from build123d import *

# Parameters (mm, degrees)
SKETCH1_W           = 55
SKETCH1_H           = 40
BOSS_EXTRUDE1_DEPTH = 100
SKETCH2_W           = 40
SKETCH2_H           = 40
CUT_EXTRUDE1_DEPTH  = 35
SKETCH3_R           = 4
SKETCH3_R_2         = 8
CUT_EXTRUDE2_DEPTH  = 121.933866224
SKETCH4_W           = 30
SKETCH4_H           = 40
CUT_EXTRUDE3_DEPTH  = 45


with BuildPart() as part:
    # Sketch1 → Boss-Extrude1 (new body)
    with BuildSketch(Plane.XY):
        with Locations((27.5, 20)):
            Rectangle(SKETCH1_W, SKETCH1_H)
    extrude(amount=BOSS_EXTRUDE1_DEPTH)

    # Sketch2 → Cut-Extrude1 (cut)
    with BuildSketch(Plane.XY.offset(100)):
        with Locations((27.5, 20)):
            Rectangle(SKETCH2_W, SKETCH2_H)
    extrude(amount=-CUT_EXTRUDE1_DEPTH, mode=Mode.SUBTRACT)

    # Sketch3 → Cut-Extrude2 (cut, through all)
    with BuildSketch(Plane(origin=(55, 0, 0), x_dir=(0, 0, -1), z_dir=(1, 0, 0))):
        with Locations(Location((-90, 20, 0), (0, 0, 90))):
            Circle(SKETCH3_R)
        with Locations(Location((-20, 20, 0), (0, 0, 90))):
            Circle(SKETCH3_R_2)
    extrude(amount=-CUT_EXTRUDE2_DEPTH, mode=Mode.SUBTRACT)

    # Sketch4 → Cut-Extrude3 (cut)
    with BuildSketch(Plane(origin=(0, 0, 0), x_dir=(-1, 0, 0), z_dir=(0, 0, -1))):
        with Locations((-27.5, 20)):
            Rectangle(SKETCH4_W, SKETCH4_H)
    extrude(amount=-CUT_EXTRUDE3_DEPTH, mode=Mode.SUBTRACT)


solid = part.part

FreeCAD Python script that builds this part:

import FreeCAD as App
import Part
import Sketcher


def add_polygon(sketch, points):
    """Adds a closed chain of lines whose ends are joined by coincident constraints."""
    first, n = sketch.GeometryCount, len(points)
    for a, b in zip(points, points[1:] + points[:1]):
        sketch.addGeometry(Part.LineSegment(App.Vector(*a, 0), App.Vector(*b, 0)), False)
    for i in range(n):
        sketch.addConstraint(Sketcher.Constraint("Coincident", first + i, 2, first + (i + 1) % n, 1))

doc = App.newDocument("Part")
params = doc.addObject("Spreadsheet::Sheet", "Params")
for row, (alias, value) in enumerate([
    ("sketch1_width", "55 mm"),
    ("sketch1_height", "40 mm"),
    ("pad1_length", "100 mm"),
    ("sketch2_width", "40 mm"),
    ("pocket1_length", "35 mm"),
    ("sketch3_diameter", "8 mm"),
    ("sketch3_diameter2", "16 mm"),
    ("sketch4_width", "30 mm"),
    ("sketch4_height", "40 mm"),
    ("pocket3_length", "45 mm"),
], start=1):
    params.set(f"A{row}", alias)
    params.set(f"B{row}", "=" + value)
    params.setAlias(f"B{row}", alias)

body = doc.addObject("PartDesign::Body", "Body")

# Sketch on XY plane
sketch1 = body.newObject("Sketcher::SketchObject", "Sketch")
sketch1.AttachmentSupport = (doc.getObject("XY_Plane"), [""])
sketch1.MapMode = "FlatFace"
add_polygon(sketch1, [(0, 40), (0, 0), (55, 0), (55, 40)])  # lines 0-3
sketch1.addConstraint(Sketcher.Constraint("Vertical", 0))
sketch1.addConstraint(Sketcher.Constraint("Horizontal", 1))
sketch1.addConstraint(Sketcher.Constraint("Vertical", 2))
sketch1.addConstraint(Sketcher.Constraint("Horizontal", 3))
sketch1.addConstraint(Sketcher.Constraint("Coincident", 0, 2, -1, 1))
sketch1.addConstraint(Sketcher.Constraint("DistanceX", 1, 1, 1, 2, 55.0))
sketch1.addConstraint(Sketcher.Constraint("DistanceY", 0, 2, 0, 1, 40.0))
sketch1.setExpression("Constraints[9]", "Params.sketch1_width")
sketch1.setExpression("Constraints[10]", "Params.sketch1_height")
pad1 = body.newObject("PartDesign::Pad", "Pad")
pad1.Profile = sketch1
pad1.setExpression("Length", "Params.pad1_length")

# Sketch on XY plane
sketch2 = body.newObject("Sketcher::SketchObject", "Sketch001")
sketch2.AttachmentSupport = (doc.getObject("XY_Plane"), [""])
sketch2.MapMode = "FlatFace"
sketch2.AttachmentOffset = App.Placement(App.Vector(0, 0, 100), App.Rotation())
add_polygon(sketch2, [(8, 40), (8, 0), (48, 0), (48, 40)])  # lines 0-3
sketch2.addConstraint(Sketcher.Constraint("Vertical", 0))
sketch2.addConstraint(Sketcher.Constraint("Horizontal", 1))
sketch2.addConstraint(Sketcher.Constraint("Vertical", 2))
sketch2.addConstraint(Sketcher.Constraint("Horizontal", 3))
sketch2.addConstraint(Sketcher.Constraint("PointOnObject", 0, 2, -1))
sketch2.addConstraint(Sketcher.Constraint("Equal", 3, 0))
sketch2.addConstraint(Sketcher.Constraint("DistanceX", 1, 1, 1, 2, 40.0))
sketch2.addConstraint(Sketcher.Constraint("DistanceX", -1, 1, 0, 2, 7.5))
sketch2.setExpression("Constraints[10]", "Params.sketch2_width")
pocket1 = body.newObject("PartDesign::Pocket", "Pocket")
pocket1.Profile = sketch2
pocket1.setExpression("Length", "Params.pocket1_length")

# Sketch on YZ plane
sketch3 = body.newObject("Sketcher::SketchObject", "Sketch002")
sketch3.AttachmentSupport = (doc.getObject("YZ_Plane"), [""])
sketch3.MapMode = "FlatFace"
sketch3.AttachmentOffset = App.Placement(App.Vector(0, 0, 55), App.Rotation())
sketch3.addGeometry(Part.Circle(App.Vector(20, 90, 0), App.Vector(0, 0, 1), 4), False)
sketch3.addGeometry(Part.Circle(App.Vector(20, 20, 0), App.Vector(0, 0, 1), 8), False)
sketch3.addConstraint(Sketcher.Constraint("Vertical", 0, 3, 1, 3))
sketch3.addConstraint(Sketcher.Constraint("Diameter", 0, 8.0))
sketch3.addConstraint(Sketcher.Constraint("Diameter", 1, 16.0))
sketch3.addConstraint(Sketcher.Constraint("DistanceX", -1, 1, 0, 3, 20.0))
sketch3.addConstraint(Sketcher.Constraint("DistanceY", -1, 1, 0, 3, 90.0))
sketch3.addConstraint(Sketcher.Constraint("DistanceY", -1, 1, 1, 3, 20.0))
sketch3.setExpression("Constraints[1]", "Params.sketch3_diameter")
sketch3.setExpression("Constraints[2]", "Params.sketch3_diameter2")
pocket2 = body.newObject("PartDesign::Pocket", "Pocket001")
pocket2.Profile = sketch3
pocket2.Type = "ThroughAll"

# Sketch on XY plane
sketch4 = body.newObject("Sketcher::SketchObject", "Sketch003")
sketch4.AttachmentSupport = (doc.getObject("XY_Plane"), [""])
sketch4.MapMode = "FlatFace"
add_polygon(sketch4, [(42, 40), (42, 0), (12, 0), (12, 40)])  # lines 0-3
sketch4.addConstraint(Sketcher.Constraint("Vertical", 0))
sketch4.addConstraint(Sketcher.Constraint("Horizontal", 1))
sketch4.addConstraint(Sketcher.Constraint("Vertical", 2))
sketch4.addConstraint(Sketcher.Constraint("Horizontal", 3))
sketch4.addConstraint(Sketcher.Constraint("PointOnObject", 0, 2, -1))
sketch4.addConstraint(Sketcher.Constraint("DistanceX", 1, 2, 1, 1, 30.0))
sketch4.addConstraint(Sketcher.Constraint("DistanceY", 0, 2, 0, 1, 40.0))
sketch4.addConstraint(Sketcher.Constraint("DistanceX", -1, 1, 0, 2, 42.5))
sketch4.setExpression("Constraints[9]", "Params.sketch4_width")
sketch4.setExpression("Constraints[10]", "Params.sketch4_height")
pocket3 = body.newObject("PartDesign::Pocket", "Pocket002")
pocket3.Profile = sketch4
pocket3.setExpression("Length", "Params.pocket3_length")
pocket3.Reversed = True

doc.recompute()
